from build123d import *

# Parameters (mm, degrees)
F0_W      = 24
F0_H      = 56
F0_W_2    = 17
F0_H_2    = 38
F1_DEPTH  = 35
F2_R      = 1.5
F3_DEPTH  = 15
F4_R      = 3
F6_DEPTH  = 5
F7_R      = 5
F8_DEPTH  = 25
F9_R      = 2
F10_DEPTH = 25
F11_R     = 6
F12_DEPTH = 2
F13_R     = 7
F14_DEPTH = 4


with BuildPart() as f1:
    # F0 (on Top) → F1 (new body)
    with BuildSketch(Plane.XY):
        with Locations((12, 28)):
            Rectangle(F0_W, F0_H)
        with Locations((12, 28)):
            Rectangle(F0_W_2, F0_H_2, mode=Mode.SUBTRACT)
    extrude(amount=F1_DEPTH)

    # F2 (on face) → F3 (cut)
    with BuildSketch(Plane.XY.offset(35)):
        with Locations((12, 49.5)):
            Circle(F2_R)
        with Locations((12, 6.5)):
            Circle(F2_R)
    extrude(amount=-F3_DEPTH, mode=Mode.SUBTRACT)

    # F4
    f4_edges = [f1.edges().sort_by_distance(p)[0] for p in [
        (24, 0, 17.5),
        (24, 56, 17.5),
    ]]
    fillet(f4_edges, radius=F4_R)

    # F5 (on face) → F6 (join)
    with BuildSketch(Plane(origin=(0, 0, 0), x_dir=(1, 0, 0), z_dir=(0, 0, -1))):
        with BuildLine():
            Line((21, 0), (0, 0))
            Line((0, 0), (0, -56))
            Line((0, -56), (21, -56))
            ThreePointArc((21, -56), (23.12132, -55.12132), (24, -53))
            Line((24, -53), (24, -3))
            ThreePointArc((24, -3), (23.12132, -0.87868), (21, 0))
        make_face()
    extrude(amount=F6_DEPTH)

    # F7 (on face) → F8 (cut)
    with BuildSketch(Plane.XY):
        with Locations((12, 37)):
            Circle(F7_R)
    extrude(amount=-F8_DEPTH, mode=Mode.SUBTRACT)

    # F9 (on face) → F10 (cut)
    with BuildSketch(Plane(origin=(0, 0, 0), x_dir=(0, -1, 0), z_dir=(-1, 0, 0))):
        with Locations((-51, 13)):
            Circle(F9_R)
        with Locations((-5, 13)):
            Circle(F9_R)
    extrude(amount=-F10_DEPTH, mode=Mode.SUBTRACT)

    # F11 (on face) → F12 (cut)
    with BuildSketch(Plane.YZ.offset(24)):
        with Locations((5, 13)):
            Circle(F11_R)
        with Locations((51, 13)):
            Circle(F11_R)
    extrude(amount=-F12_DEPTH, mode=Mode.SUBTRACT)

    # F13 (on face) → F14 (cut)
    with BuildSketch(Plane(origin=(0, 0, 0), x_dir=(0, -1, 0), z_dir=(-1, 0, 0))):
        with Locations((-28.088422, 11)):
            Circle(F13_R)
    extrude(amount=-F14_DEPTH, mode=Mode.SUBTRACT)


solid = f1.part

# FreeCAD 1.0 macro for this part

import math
import FreeCAD as App
import Part
import Sketcher


def edges_at(feature, points):
    """Names of the edges that pass closest to the given points."""
    edges = feature.Shape.Edges
    near = lambda p: min(range(len(edges)), key=lambda i: edges[i].distToShape(Part.Vertex(*p))[0])
    return sorted({f"Edge{near(p) + 1}" for p in points})


def add_polygon(sketch, points):
    """Adds a closed chain of lines whose ends are joined by coincident constraints."""
    first, n = sketch.GeometryCount, len(points)
    for a, b in zip(points, points[1:] + points[:1]):
        sketch.addGeometry(Part.LineSegment(App.Vector(*a, 0), App.Vector(*b, 0)), False)
    for i in range(n):
        sketch.addConstraint(Sketcher.Constraint("Coincident", first + i, 2, first + (i + 1) % n, 1))

doc = App.newDocument("Part")
body = doc.addObject("PartDesign::Body", "Body")

# Sketch on XY plane
sketch1 = doc.addObject("Sketcher::SketchObject", "Sketch")
body.addObject(sketch1)
sketch1.AttachmentSupport = (doc.XY_Plane, [""])
sketch1.MapMode = "FlatFace"
add_polygon(sketch1, [(0, 56), (0, 0), (24, 0), (24, 56)])  # lines 0-3
add_polygon(sketch1, [(20, 9), (4, 9), (4, 47), (20, 47)])  # lines 4-7
sketch1.addConstraint(Sketcher.Constraint("Vertical", 0))
sketch1.addConstraint(Sketcher.Constraint("Horizontal", 1))
sketch1.addConstraint(Sketcher.Constraint("Vertical", 2))
sketch1.addConstraint(Sketcher.Constraint("Horizontal", 3))
sketch1.addConstraint(Sketcher.Constraint("Horizontal", 4))
sketch1.addConstraint(Sketcher.Constraint("Vertical", 5))
sketch1.addConstraint(Sketcher.Constraint("Horizontal", 6))
sketch1.addConstraint(Sketcher.Constraint("Vertical", 7))
sketch1.addConstraint(Sketcher.Constraint("Coincident", 0, 2, -1, 1))
sketch1.addConstraint(Sketcher.Constraint("DistanceX", 1, 1, 1, 2, 24.0))
sketch1.addConstraint(Sketcher.Constraint("DistanceX", 4, 2, 4, 1, 17.0))
sketch1.addConstraint(Sketcher.Constraint("DistanceY", 0, 2, 0, 1, 56.0))
sketch1.addConstraint(Sketcher.Constraint("DistanceY", 5, 1, 5, 2, 38.0))
sketch1.addConstraint(Sketcher.Constraint("DistanceY", -1, 1, 4, 2, 9.0))
sketch1.addConstraint(Sketcher.Constraint("DistanceX", -1, 1, 4, 2, 3.5))
pad1 = doc.addObject("PartDesign::Pad", "Pad")
body.addObject(pad1)
pad1.Profile = sketch1
pad1.Length = 35

# Sketch on XY plane
sketch2 = doc.addObject("Sketcher::SketchObject", "Sketch001")
body.addObject(sketch2)
sketch2.AttachmentSupport = (doc.XY_Plane, [""])
sketch2.MapMode = "FlatFace"
sketch2.AttachmentOffset = App.Placement(App.Vector(0, 0, 35), App.Rotation())
sketch2.addGeometry(Part.Circle(App.Vector(12, 49.5, 0), App.Vector(0, 0, 1), 1.5), False)
sketch2.addGeometry(Part.Circle(App.Vector(12, 6.5, 0), App.Vector(0, 0, 1), 1.5), False)
sketch2.addConstraint(Sketcher.Constraint("Equal", 0, 1))
sketch2.addConstraint(Sketcher.Constraint("Vertical", 0, 3, 1, 3))
sketch2.addConstraint(Sketcher.Constraint("Diameter", 0, 3.0))
sketch2.addConstraint(Sketcher.Constraint("DistanceX", -1, 1, 0, 3, 12.0))
sketch2.addConstraint(Sketcher.Constraint("DistanceY", 1, 3, 0, 3, 43.0))
sketch2.addConstraint(Sketcher.Constraint("DistanceY", -1, 1, 0, 3, 49.5))
pocket1 = doc.addObject("PartDesign::Pocket", "Pocket")
body.addObject(pocket1)
pocket1.Profile = sketch2
pocket1.Length = 15
doc.recompute()

fillet = doc.addObject("PartDesign::Fillet", "Fillet")
body.addObject(fillet)
fillet.Base = (pocket1, edges_at(pocket1, [(24, 0, 17.5), (24, 56, 17.5)]))
fillet.Radius = 3

# Sketch on XY plane
sketch3 = doc.addObject("Sketcher::SketchObject", "Sketch002")
body.addObject(sketch3)
sketch3.AttachmentSupport = (doc.XY_Plane, [""])
sketch3.MapMode = "FlatFace"
sketch3.addGeometry(Part.LineSegment(App.Vector(21, 0, 0), App.Vector(0, 0, 0)), False)
sketch3.addGeometry(Part.LineSegment(App.Vector(0, 0, 0), App.Vector(0, 56, 0)), False)
sketch3.addGeometry(Part.LineSegment(App.Vector(0, 56, 0), App.Vector(21, 56, 0)), False)
sketch3.addGeometry(Part.ArcOfCircle(Part.Circle(App.Vector(21, 53, 0), App.Vector(0, 0, 1), 3), math.radians(0), math.radians(90)), False)
sketch3.addGeometry(Part.LineSegment(App.Vector(24, 53, 0), App.Vector(24, 3, 0)), False)
sketch3.addGeometry(Part.ArcOfCircle(Part.Circle(App.Vector(21, 3, 0), App.Vector(0, 0, 1), 3), math.radians(-90), math.radians(0)), False)
sketch3.addConstraint(Sketcher.Constraint("Coincident", 0, 2, 1, 1))
sketch3.addConstraint(Sketcher.Constraint("Coincident", 1, 2, 2, 1))
sketch3.addConstraint(Sketcher.Constraint("Tangent", 2, 2, 3, 2))
sketch3.addConstraint(Sketcher.Constraint("Tangent", 3, 1, 4, 1))
sketch3.addConstraint(Sketcher.Constraint("Tangent", 4, 2, 5, 2))
sketch3.addConstraint(Sketcher.Constraint("Tangent", 5, 1, 0, 1))
sketch3.addConstraint(Sketcher.Constraint("Horizontal", 0))
sketch3.addConstraint(Sketcher.Constraint("Vertical", 1))
sketch3.addConstraint(Sketcher.Constraint("Horizontal", 2))
sketch3.addConstraint(Sketcher.Constraint("Vertical", 4))
sketch3.addConstraint(Sketcher.Constraint("Coincident", 0, 2, -1, 1))
sketch3.addConstraint(Sketcher.Constraint("Equal", 3, 5))
sketch3.addConstraint(Sketcher.Constraint("Radius", 3, 3.000001))
sketch3.addConstraint(Sketcher.Constraint("DistanceX", 0, 2, 0, 1, 21.0))
sketch3.addConstraint(Sketcher.Constraint("DistanceY", 1, 1, 1, 2, 56.0))
pad2 = doc.addObject("PartDesign::Pad", "Pad001")
body.addObject(pad2)
pad2.Profile = sketch3
pad2.Length = 5
pad2.Reversed = True

# Sketch on XY plane
sketch4 = doc.addObject("Sketcher::SketchObject", "Sketch003")
body.addObject(sketch4)
sketch4.AttachmentSupport = (doc.XY_Plane, [""])
sketch4.MapMode = "FlatFace"
sketch4.addGeometry(Part.Circle(App.Vector(12, 37, 0), App.Vector(0, 0, 1), 5), False)
sketch4.addConstraint(Sketcher.Constraint("Diameter", 0, 10.0))
sketch4.addConstraint(Sketcher.Constraint("DistanceX", -1, 1, 0, 3, 12.0))
sketch4.addConstraint(Sketcher.Constraint("DistanceY", -1, 1, 0, 3, 37.0))
pocket2 = doc.addObject("PartDesign::Pocket", "Pocket001")
body.addObject(pocket2)
pocket2.Profile = sketch4
pocket2.Length = 25

# Sketch on YZ plane
sketch5 = doc.addObject("Sketcher::SketchObject", "Sketch004")
body.addObject(sketch5)
sketch5.AttachmentSupport = (doc.YZ_Plane, [""])
sketch5.MapMode = "FlatFace"
sketch5.addGeometry(Part.Circle(App.Vector(51, 13, 0), App.Vector(0, 0, 1), 2), False)
sketch5.addGeometry(Part.Circle(App.Vector(5, 13, 0), App.Vector(0, 0, 1), 2), False)
sketch5.addConstraint(Sketcher.Constraint("Equal", 0, 1))
sketch5.addConstraint(Sketcher.Constraint("Horizontal", 0, 3, 1, 3))
sketch5.addConstraint(Sketcher.Constraint("Diameter", 0, 4.0))
sketch5.addConstraint(Sketcher.Constraint("DistanceX", -1, 1, 0, 3, 51.0))
sketch5.addConstraint(Sketcher.Constraint("DistanceY", -1, 1, 0, 3, 13.0))
sketch5.addConstraint(Sketcher.Constraint("DistanceX", -1, 1, 1, 3, 5.0))
pocket3 = doc.addObject("PartDesign::Pocket", "Pocket002")
body.addObject(pocket3)
pocket3.Profile = sketch5
pocket3.Length = 25
pocket3.Reversed = True

# Sketch on YZ plane
sketch6 = doc.addObject("Sketcher::SketchObject", "Sketch005")
body.addObject(sketch6)
sketch6.AttachmentSupport = (doc.YZ_Plane, [""])
sketch6.MapMode = "FlatFace"
sketch6.AttachmentOffset = App.Placement(App.Vector(0, 0, 24), App.Rotation())
sketch6.addGeometry(Part.Circle(App.Vector(5, 13, 0), App.Vector(0, 0, 1), 6), False)
sketch6.addGeometry(Part.Circle(App.Vector(51, 13, 0), App.Vector(0, 0, 1), 6), False)
sketch6.addConstraint(Sketcher.Constraint("Equal", 0, 1))
sketch6.addConstraint(Sketcher.Constraint("Horizontal", 0, 3, 1, 3))
sketch6.addConstraint(Sketcher.Constraint("Diameter", 0, 12.0))
sketch6.addConstraint(Sketcher.Constraint("DistanceX", -1, 1, 0, 3, 5.0))
sketch6.addConstraint(Sketcher.Constraint("DistanceY", -1, 1, 0, 3, 13.0))
sketch6.addConstraint(Sketcher.Constraint("DistanceX", -1, 1, 1, 3, 51.0))
pocket4 = doc.addObject("PartDesign::Pocket", "Pocket003")
body.addObject(pocket4)
pocket4.Profile = sketch6
pocket4.Length = 2

# Sketch on YZ plane
sketch7 = doc.addObject("Sketcher::SketchObject", "Sketch006")
body.addObject(sketch7)
sketch7.AttachmentSupport = (doc.YZ_Plane, [""])
sketch7.MapMode = "FlatFace"
sketch7.addGeometry(Part.Circle(App.Vector(28, 11, 0), App.Vector(0, 0, 1), 7), False)
sketch7.addConstraint(Sketcher.Constraint("Diameter", 0, 14.0))
sketch7.addConstraint(Sketcher.Constraint("DistanceY", -1, 1, 0, 3, 11.0))
sketch7.addConstraint(Sketcher.Constraint("DistanceX", -1, 1, 0, 3, 28.088422))
pocket5 = doc.addObject("PartDesign::Pocket", "Pocket004")
body.addObject(pocket5)
pocket5.Profile = sketch7
pocket5.Length = 4
pocket5.Reversed = True

doc.recompute()
